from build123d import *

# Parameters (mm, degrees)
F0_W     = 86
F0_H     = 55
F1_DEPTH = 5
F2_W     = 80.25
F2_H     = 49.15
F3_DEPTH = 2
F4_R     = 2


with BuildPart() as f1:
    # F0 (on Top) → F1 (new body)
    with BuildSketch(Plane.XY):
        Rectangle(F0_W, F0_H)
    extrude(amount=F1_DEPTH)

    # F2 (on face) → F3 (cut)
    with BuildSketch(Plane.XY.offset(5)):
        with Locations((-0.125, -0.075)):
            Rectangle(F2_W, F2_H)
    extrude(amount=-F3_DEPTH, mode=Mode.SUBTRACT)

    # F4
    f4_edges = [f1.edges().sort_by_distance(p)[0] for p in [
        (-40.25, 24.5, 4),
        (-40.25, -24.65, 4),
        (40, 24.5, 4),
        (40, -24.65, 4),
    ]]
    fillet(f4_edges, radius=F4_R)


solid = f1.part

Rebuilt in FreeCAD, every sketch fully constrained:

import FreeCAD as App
import Part
import Sketcher

V = App.Vector
Q = App.Units.Quantity


def edges_at(feature, points):
    """Names of the edges that pass closest to the given points."""
    edges = feature.Shape.Edges
    near = lambda p: min(range(len(edges)), key=lambda i: edges[i].distToShape(Part.Vertex(*p))[0])
    return sorted({f"Edge{near(p) + 1}" for p in points})


def add_polygon(sketch, points):
    """Adds a closed chain of lines whose ends are joined by coincident constraints."""
    first, n = sketch.GeometryCount, len(points)
    for a, b in zip(points, points[1:] + points[:1]):
        sketch.addGeometry(Part.LineSegment(App.Vector(*a, 0), App.Vector(*b, 0)), False)
    for i in range(n):
        sketch.addConstraint(Sketcher.Constraint("Coincident", first + i, 2, first + (i + 1) % n, 1))

doc = App.newDocument("Part")
body = doc.addObject("PartDesign::Body", "Body")

sketch1 = body.newObject("Sketcher::SketchObject", "Sketch")
sketch1.AttachmentSupport = (doc.getObject("XY_Plane"), [""])
sketch1.MapMode = "FlatFace"
add_polygon(sketch1, [(-43, 27.5), (-43, -27.5), (43, -27.5), (43, 27.5)])
sketch1.addConstraint([
    Sketcher.Constraint("Vertical", 0),
    Sketcher.Constraint("Horizontal", 1),
    Sketcher.Constraint("Vertical", 2),
    Sketcher.Constraint("Horizontal", 3),
    Sketcher.Constraint("Symmetric", 0, 2, 2, 2, -1, 1),
    Sketcher.Constraint("DistanceX", 1, 1, 1, 2, Q("86 mm")),
    Sketcher.Constraint("DistanceY", 0, 2, 0, 1, Q("55 mm")),
])
pad1 = body.newObject("PartDesign::Pad", "Pad")
pad1.Profile = sketch1
pad1.Length = 5

sketch2 = body.newObject("Sketcher::SketchObject", "Sketch001")
sketch2.AttachmentSupport = (doc.getObject("XY_Plane"), [""])
sketch2.MapMode = "FlatFace"
sketch2.AttachmentOffset = App.Placement(V(0, 0, 5), App.Rotation())
add_polygon(sketch2, [(-40.25, 24.5), (-40.25, -24.65), (40, -24.65), (40, 24.5)])
sketch2.addConstraint([
    Sketcher.Constraint("Vertical", 0),
    Sketcher.Constraint("Horizontal", 1),
    Sketcher.Constraint("Vertical", 2),
    Sketcher.Constraint("Horizontal", 3),
    Sketcher.Constraint("DistanceX", -1, 1, 1, 2, Q("40 mm")),
    Sketcher.Constraint("DistanceX", 1, 1, 1, 2, Q("80.25 mm")),
    Sketcher.Constraint("DistanceY", 0, 2, 0, 1, Q("49.15 mm")),
    Sketcher.Constraint("DistanceY", -1, 1, 2, 2, Q("24.5 mm")),
])
pocket1 = body.newObject("PartDesign::Pocket", "Pocket")
pocket1.Profile = sketch2
pocket1.Length = 2
doc.recompute()

fillet = body.newObject("PartDesign::Fillet", "Fillet")
fillet.Base = (pocket1, edges_at(pocket1, [
    (-40.25, 24.5, 4),
    (-40.25, -24.65, 4),
    (40, 24.5, 4),
    (40, -24.65, 4),
]))
fillet.Radius = 2

doc.recompute()
